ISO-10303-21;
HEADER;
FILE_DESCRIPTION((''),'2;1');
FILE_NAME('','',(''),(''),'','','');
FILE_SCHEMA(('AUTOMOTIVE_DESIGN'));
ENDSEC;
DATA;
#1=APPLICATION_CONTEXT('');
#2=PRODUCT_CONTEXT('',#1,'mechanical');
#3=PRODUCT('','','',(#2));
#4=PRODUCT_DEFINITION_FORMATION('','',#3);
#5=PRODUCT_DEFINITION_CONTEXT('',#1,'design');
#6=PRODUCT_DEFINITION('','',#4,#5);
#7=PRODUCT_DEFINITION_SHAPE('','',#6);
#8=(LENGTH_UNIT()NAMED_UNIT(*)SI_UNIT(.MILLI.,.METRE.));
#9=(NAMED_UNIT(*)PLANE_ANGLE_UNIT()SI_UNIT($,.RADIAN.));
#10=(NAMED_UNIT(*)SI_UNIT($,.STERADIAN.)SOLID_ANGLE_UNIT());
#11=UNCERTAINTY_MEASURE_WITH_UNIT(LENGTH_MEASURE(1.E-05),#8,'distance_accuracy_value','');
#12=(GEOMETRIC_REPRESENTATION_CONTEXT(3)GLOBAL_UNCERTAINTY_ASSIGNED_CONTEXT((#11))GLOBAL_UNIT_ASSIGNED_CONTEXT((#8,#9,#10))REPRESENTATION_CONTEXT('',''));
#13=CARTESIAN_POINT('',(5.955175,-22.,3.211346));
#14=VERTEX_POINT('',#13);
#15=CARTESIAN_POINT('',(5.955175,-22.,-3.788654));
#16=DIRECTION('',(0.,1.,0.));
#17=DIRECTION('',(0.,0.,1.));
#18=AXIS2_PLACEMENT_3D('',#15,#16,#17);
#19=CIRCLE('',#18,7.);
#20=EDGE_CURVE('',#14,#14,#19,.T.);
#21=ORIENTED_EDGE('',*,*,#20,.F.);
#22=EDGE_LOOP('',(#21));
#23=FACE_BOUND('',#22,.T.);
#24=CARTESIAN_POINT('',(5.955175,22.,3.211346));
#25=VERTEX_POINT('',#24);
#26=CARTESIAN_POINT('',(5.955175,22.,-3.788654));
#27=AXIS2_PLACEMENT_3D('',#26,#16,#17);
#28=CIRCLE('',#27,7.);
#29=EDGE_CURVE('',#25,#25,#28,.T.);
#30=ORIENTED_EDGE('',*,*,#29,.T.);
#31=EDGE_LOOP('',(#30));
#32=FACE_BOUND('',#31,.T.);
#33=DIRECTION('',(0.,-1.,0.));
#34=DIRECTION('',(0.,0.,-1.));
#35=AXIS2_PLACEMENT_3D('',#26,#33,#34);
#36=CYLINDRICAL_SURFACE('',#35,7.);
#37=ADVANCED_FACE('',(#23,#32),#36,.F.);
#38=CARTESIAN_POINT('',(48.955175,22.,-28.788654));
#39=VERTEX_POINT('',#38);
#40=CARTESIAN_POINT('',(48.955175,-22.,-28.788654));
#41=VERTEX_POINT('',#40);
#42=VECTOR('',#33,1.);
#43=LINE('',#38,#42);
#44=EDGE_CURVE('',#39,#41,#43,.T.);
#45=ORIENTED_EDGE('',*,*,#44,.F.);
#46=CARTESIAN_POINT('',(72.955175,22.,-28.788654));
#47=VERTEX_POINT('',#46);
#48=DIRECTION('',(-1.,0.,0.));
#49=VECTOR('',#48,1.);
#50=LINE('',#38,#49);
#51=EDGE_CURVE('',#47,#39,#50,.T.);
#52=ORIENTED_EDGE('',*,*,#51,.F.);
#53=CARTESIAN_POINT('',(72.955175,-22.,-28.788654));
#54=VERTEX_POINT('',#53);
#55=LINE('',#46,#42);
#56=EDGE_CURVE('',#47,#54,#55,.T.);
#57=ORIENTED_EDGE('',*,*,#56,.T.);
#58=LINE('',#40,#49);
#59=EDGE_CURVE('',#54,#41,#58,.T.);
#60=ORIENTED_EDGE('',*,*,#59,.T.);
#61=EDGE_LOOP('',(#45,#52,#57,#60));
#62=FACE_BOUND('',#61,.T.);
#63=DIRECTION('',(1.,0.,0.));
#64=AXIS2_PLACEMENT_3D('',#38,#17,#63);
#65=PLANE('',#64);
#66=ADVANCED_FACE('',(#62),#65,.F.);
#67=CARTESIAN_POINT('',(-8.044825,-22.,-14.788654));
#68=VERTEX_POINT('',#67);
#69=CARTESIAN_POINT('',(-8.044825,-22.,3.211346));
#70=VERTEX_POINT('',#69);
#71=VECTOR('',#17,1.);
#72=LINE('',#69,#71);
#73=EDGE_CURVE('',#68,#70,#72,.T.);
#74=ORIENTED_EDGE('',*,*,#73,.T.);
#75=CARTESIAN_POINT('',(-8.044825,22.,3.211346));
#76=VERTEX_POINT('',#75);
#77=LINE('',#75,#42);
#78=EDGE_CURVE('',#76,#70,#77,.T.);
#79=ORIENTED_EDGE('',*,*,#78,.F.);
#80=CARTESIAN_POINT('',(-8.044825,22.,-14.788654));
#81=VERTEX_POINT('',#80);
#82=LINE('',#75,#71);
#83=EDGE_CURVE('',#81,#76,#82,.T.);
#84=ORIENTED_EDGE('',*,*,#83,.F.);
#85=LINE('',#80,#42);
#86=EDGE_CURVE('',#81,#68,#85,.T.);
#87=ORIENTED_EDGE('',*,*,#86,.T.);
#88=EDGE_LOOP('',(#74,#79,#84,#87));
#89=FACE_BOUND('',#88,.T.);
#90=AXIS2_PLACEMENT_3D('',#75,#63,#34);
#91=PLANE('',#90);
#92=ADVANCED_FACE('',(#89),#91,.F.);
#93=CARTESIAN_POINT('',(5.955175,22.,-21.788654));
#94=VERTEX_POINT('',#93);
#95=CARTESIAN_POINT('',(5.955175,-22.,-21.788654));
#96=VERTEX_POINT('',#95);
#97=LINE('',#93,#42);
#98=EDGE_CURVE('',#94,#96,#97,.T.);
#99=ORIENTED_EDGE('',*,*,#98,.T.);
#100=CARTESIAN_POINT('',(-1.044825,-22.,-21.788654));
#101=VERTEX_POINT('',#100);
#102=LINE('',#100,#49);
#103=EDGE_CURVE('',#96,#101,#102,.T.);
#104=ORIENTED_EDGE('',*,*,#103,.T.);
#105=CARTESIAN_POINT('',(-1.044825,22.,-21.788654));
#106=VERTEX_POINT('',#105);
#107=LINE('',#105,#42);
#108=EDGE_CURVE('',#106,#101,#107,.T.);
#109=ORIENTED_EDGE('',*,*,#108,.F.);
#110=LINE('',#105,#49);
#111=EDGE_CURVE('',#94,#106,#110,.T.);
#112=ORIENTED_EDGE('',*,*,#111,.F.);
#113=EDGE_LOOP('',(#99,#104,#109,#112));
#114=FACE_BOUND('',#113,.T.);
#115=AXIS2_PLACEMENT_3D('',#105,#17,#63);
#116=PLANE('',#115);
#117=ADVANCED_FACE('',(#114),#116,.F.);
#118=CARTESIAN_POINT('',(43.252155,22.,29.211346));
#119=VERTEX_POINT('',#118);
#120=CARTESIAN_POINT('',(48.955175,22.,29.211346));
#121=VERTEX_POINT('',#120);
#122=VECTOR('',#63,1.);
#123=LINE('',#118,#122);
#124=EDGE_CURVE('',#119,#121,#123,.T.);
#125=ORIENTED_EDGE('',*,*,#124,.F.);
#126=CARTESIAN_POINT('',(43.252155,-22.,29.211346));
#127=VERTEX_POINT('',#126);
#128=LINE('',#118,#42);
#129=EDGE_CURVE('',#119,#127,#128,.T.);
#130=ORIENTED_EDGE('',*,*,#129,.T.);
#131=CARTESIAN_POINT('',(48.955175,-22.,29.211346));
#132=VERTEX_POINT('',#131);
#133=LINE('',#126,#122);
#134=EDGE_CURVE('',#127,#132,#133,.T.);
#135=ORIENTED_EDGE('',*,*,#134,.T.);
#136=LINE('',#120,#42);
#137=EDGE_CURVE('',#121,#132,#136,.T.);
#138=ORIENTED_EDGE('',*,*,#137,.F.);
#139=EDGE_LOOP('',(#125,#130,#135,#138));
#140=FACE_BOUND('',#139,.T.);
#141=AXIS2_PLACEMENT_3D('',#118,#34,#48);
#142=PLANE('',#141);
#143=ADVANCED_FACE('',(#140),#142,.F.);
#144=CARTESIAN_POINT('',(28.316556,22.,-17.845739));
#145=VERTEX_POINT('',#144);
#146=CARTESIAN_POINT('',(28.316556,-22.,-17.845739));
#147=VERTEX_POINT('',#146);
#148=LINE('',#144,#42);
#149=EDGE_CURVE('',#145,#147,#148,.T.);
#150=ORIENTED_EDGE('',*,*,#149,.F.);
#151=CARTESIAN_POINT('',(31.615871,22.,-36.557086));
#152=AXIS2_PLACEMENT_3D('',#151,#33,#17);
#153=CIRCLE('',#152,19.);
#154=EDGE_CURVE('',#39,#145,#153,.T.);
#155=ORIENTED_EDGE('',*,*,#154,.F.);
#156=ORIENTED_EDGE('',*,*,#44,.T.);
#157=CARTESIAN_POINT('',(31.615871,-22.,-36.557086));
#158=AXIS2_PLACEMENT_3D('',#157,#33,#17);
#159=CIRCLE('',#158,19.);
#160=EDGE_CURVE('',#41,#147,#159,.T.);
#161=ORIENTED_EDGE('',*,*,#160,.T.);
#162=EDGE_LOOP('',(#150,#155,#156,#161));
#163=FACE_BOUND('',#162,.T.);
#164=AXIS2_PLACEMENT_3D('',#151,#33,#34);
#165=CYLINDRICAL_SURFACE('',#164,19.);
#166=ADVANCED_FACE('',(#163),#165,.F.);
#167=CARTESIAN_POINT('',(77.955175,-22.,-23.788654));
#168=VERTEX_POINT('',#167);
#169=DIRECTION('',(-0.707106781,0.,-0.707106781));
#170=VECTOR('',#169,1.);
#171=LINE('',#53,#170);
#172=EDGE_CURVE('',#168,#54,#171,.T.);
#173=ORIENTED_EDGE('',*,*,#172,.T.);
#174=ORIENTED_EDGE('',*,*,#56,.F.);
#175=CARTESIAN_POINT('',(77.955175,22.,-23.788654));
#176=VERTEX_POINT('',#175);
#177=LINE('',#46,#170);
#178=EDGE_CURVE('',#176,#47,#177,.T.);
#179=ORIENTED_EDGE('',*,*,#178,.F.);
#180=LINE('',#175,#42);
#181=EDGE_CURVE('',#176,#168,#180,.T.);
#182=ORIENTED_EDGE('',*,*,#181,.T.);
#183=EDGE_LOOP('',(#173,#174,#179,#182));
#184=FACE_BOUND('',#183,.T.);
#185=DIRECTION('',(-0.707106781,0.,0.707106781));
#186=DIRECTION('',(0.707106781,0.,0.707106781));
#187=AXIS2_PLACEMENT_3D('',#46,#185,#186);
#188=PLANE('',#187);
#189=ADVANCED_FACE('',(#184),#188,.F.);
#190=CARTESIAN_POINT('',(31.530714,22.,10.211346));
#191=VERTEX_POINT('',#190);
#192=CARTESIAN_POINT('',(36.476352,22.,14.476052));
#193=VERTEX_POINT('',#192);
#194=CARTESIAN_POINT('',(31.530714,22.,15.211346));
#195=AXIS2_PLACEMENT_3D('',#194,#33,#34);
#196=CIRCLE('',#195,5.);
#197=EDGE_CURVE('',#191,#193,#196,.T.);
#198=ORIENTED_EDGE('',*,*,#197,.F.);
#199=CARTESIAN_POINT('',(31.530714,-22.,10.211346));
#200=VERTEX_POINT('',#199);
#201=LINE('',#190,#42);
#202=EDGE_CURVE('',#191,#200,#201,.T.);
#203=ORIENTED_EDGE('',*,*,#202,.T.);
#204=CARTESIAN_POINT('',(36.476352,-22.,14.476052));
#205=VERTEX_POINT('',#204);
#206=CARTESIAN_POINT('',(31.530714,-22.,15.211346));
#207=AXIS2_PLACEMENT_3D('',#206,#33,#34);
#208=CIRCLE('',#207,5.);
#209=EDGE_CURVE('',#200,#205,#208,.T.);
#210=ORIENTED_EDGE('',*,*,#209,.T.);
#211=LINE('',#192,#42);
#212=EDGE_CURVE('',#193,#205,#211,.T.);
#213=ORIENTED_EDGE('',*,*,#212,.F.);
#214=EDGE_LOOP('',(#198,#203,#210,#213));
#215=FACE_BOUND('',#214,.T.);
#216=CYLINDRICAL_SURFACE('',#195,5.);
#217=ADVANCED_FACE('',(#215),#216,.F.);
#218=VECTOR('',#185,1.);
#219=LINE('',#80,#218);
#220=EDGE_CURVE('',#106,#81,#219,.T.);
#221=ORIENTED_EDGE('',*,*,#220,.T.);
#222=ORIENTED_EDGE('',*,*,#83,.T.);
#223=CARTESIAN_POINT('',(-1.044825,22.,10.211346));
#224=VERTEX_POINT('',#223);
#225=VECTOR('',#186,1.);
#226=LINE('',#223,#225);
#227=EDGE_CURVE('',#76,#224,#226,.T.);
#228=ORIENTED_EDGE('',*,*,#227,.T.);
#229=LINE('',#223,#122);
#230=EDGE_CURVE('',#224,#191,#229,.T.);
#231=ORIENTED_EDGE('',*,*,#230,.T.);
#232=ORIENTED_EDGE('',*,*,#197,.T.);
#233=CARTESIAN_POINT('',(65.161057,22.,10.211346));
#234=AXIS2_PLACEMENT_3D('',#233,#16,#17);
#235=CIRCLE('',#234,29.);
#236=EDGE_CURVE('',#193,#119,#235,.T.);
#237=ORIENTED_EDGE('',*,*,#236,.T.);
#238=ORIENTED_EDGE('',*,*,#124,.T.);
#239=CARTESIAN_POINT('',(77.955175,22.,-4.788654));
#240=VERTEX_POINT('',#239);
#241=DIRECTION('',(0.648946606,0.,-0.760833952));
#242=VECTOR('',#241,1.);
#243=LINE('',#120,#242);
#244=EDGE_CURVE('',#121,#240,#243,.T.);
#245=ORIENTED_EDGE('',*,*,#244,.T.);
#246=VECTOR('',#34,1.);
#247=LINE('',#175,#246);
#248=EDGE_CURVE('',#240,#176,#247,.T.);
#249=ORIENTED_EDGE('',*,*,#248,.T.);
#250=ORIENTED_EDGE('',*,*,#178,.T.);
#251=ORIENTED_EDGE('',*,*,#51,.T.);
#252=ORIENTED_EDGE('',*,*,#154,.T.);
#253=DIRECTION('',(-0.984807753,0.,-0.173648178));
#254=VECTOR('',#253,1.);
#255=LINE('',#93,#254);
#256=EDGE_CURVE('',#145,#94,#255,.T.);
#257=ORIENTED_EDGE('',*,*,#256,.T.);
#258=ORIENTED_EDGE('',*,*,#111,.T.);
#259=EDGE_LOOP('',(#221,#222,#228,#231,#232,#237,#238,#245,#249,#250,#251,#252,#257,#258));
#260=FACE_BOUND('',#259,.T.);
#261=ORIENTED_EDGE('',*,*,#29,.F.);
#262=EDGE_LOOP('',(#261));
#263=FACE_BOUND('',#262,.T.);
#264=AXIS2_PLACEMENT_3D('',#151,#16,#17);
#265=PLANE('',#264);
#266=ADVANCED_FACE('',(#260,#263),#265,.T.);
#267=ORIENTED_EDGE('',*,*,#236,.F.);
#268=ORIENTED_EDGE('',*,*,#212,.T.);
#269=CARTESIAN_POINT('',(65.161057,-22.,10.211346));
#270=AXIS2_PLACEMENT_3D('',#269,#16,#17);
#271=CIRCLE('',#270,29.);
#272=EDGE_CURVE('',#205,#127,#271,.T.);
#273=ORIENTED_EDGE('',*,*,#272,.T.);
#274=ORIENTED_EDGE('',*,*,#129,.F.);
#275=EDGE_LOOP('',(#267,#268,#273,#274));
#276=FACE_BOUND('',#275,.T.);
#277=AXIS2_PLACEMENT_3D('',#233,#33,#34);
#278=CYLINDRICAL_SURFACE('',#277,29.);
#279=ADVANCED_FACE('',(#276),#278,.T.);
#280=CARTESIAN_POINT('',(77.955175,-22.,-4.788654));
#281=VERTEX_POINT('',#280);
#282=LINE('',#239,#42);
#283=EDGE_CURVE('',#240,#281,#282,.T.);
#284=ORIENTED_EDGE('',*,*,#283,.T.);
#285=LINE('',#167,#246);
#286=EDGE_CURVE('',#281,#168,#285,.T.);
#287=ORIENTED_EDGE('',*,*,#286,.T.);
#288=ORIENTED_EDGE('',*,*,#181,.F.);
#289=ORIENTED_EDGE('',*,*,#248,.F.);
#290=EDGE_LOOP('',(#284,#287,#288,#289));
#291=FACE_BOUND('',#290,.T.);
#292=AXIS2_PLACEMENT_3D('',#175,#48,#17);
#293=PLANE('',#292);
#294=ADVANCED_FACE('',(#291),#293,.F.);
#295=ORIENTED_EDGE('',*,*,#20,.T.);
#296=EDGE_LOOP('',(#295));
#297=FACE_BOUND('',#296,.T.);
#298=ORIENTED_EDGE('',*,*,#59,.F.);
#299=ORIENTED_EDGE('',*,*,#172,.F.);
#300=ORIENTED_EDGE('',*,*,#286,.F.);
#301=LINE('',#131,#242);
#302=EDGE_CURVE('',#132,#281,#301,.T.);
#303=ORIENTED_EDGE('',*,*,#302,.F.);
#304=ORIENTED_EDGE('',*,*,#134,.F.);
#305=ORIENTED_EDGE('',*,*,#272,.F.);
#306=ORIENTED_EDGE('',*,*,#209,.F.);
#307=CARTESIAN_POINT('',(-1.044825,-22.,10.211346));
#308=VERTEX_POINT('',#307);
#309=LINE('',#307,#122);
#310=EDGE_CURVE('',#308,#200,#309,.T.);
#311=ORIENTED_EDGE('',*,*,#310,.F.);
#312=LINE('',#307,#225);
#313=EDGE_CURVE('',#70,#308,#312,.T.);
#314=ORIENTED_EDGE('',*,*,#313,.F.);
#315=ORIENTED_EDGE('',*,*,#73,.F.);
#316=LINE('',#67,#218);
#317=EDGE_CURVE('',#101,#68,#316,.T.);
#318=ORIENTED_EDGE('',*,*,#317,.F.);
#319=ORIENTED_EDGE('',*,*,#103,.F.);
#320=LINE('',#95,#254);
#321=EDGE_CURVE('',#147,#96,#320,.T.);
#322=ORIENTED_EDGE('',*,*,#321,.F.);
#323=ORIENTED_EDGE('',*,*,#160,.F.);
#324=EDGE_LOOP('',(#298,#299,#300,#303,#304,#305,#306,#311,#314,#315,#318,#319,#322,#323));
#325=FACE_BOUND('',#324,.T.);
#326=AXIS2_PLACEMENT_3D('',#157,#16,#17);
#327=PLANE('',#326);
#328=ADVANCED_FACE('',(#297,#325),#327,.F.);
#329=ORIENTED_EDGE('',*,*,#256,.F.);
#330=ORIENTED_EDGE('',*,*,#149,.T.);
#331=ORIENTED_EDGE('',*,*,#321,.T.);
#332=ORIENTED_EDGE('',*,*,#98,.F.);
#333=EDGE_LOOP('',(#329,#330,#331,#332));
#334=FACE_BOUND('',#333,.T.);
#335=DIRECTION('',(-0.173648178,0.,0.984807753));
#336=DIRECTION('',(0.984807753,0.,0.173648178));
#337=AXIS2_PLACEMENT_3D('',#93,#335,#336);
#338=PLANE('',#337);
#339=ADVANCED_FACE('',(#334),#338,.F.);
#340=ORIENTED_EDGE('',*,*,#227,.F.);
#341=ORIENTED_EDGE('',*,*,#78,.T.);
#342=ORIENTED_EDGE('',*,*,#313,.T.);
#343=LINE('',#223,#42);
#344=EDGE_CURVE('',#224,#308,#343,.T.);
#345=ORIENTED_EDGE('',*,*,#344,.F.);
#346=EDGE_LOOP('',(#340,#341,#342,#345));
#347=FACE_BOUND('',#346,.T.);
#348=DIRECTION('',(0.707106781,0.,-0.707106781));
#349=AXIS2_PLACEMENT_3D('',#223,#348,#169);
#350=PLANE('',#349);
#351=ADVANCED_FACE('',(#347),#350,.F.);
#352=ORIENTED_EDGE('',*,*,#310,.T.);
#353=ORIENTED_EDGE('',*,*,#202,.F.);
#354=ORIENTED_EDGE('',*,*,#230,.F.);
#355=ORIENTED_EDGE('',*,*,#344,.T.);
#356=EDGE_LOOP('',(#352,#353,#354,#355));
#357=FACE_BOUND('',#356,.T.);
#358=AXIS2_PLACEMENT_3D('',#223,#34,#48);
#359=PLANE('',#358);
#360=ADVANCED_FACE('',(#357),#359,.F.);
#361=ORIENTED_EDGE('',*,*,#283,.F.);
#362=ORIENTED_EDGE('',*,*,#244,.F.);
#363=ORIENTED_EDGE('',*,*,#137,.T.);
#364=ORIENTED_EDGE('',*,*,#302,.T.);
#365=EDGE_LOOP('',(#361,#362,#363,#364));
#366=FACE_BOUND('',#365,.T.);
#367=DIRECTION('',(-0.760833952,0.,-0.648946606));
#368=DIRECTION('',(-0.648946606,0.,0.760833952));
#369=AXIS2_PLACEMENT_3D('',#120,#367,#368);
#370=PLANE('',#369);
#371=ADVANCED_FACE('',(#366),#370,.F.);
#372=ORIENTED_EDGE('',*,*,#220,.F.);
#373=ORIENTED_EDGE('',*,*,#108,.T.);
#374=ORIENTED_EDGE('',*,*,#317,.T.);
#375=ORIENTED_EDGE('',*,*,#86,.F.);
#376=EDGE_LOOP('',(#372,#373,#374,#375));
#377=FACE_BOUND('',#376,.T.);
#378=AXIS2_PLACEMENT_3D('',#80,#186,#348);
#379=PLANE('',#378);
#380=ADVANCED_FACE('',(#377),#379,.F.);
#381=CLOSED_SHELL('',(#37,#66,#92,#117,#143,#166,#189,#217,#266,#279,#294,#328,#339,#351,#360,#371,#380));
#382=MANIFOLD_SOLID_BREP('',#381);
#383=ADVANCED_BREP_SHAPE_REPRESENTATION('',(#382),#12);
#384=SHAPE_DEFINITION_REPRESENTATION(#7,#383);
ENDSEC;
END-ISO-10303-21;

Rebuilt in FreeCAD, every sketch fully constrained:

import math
import FreeCAD as App
import Part
import Sketcher
Q = App.Units.Quantity

doc = App.newDocument("Part")
body = doc.addObject("PartDesign::Body", "Body")

# Sketch on XZ plane
sketch1 = body.newObject("Sketcher::SketchObject", "Sketch")
sketch1.AttachmentSupport = (doc.getObject("XZ_Plane"), [""])
sketch1.MapMode = "FlatFace"
sketch1.addGeometry(Part.LineSegment(App.Vector(-8.044825, -14.788654, 0), App.Vector(-8.044825, 3.211346, 0)), False)
sketch1.addGeometry(Part.LineSegment(App.Vector(-8.044825, 3.211346, 0), App.Vector(-1.044825, 10.211346, 0)), False)
sketch1.addGeometry(Part.LineSegment(App.Vector(-1.044825, 10.211346, 0), App.Vector(31.530714, 10.211346, 0)), False)
sketch1.addGeometry(Part.ArcOfCircle(Part.Circle(App.Vector(31.530714, 15.211346, 0), App.Vector(0, 0, 1), 5), math.radians(-90), math.radians(-8.456519)), False)
sketch1.addGeometry(Part.ArcOfCircle(Part.Circle(App.Vector(65.161057, 10.211346, 0), App.Vector(0, 0, 1), 29), math.radians(139.067275), math.radians(171.543481)), False)
sketch1.addGeometry(Part.LineSegment(App.Vector(43.252155, 29.211346, 0), App.Vector(48.955175, 29.211346, 0)), False)
sketch1.addGeometry(Part.LineSegment(App.Vector(48.955175, 29.211346, 0), App.Vector(77.955175, -4.788654, 0)), False)
sketch1.addGeometry(Part.LineSegment(App.Vector(77.955175, -4.788654, 0), App.Vector(77.955175, -23.788654, 0)), False)
sketch1.addGeometry(Part.LineSegment(App.Vector(77.955175, -23.788654, 0), App.Vector(72.955175, -28.788654, 0)), False)
sketch1.addGeometry(Part.LineSegment(App.Vector(72.955175, -28.788654, 0), App.Vector(48.955175, -28.788654, 0)), False)
sketch1.addGeometry(Part.ArcOfCircle(Part.Circle(App.Vector(31.615871, -36.557086, 0), App.Vector(0, 0, 1), 19), math.radians(24.133548), math.radians(100)), False)
sketch1.addGeometry(Part.LineSegment(App.Vector(28.316556, -17.845739, 0), App.Vector(5.955175, -21.788654, 0)), False)
sketch1.addGeometry(Part.LineSegment(App.Vector(5.955175, -21.788654, 0), App.Vector(-1.044825, -21.788654, 0)), False)
sketch1.addGeometry(Part.LineSegment(App.Vector(-1.044825, -21.788654, 0), App.Vector(-8.044825, -14.788654, 0)), False)
sketch1.addGeometry(Part.Circle(App.Vector(5.955175, -3.788654, 0), App.Vector(0, 0, 1), 7), False)
sketch1.addConstraint(Sketcher.Constraint("Coincident", 0, 2, 1, 1))
sketch1.addConstraint(Sketcher.Constraint("Coincident", 1, 2, 2, 1))
sketch1.addConstraint(Sketcher.Constraint("Tangent", 2, 2, 3, 1))
sketch1.addConstraint(Sketcher.Constraint("Tangent", 3, 2, 4, 2))
sketch1.addConstraint(Sketcher.Constraint("Coincident", 4, 1, 5, 1))
sketch1.addConstraint(Sketcher.Constraint("Coincident", 5, 2, 6, 1))
sketch1.addConstraint(Sketcher.Constraint("Coincident", 6, 2, 7, 1))
sketch1.addConstraint(Sketcher.Constraint("Coincident", 7, 2, 8, 1))
sketch1.addConstraint(Sketcher.Constraint("Coincident", 8, 2, 9, 1))
sketch1.addConstraint(Sketcher.Constraint("Coincident", 9, 2, 10, 1))
sketch1.addConstraint(Sketcher.Constraint("Tangent", 10, 2, 11, 1))
sketch1.addConstraint(Sketcher.Constraint("Coincident", 11, 2, 12, 1))
sketch1.addConstraint(Sketcher.Constraint("Coincident", 12, 2, 13, 1))
sketch1.addConstraint(Sketcher.Constraint("Coincident", 13, 2, 0, 1))
sketch1.addConstraint(Sketcher.Constraint("Vertical", 0))
sketch1.addConstraint(Sketcher.Constraint("Horizontal", 2))
sketch1.addConstraint(Sketcher.Constraint("Horizontal", 5))
sketch1.addConstraint(Sketcher.Constraint("Vertical", 7))
sketch1.addConstraint(Sketcher.Constraint("Horizontal", 9))
sketch1.addConstraint(Sketcher.Constraint("Horizontal", 12))
sketch1.addConstraint(Sketcher.Constraint("Parallel", 1, 8))
sketch1.addConstraint(Sketcher.Constraint("Perpendicular", 8, 13))
sketch1.addConstraint(Sketcher.Constraint("Horizontal", 4, 3, 1, 2))
sketch1.addConstraint(Sketcher.Constraint("Vertical", 5, 2, 9, 2))
sketch1.addConstraint(Sketcher.Constraint("Vertical", 14, 3, 11, 2))
sketch1.addConstraint(Sketcher.Constraint("Vertical", 1, 2, 12, 2))
sketch1.addConstraint(Sketcher.Constraint("Equal", 1, 13))
sketch1.addConstraint(Sketcher.Constraint("Diameter", 14, Q("14 mm")))
sketch1.addConstraint(Sketcher.Constraint("Radius", 3, Q("5 mm")))
sketch1.addConstraint(Sketcher.Constraint("Radius", 4, Q("29 mm")))
sketch1.addConstraint(Sketcher.Constraint("Radius", 10, Q("19 mm")))
sketch1.addConstraint(Sketcher.Constraint("DistanceX", 9, 2, 9, 1, Q("24 mm")))
sketch1.addConstraint(Sketcher.Constraint("DistanceX", 12, 2, 12, 1, Q("7 mm")))
sketch1.addConstraint(Sketcher.Constraint("DistanceY", 0, 1, 0, 2, Q("18 mm")))
sketch1.addConstraint(Sketcher.Constraint("DistanceY", 7, 2, 7, 1, Q("19 mm")))
sketch1.addConstraint(Sketcher.Constraint("Angle", 11, Q("-170 deg")))
sketch1.addConstraint(Sketcher.Constraint("DistanceY", 14, 3, 3, 3, Q("19 mm")))
sketch1.addConstraint(Sketcher.Constraint("DistanceX", 0, 2, 14, 3, Q("14 mm")))
sketch1.addConstraint(Sketcher.Constraint("DistanceY", 3, 3, 4, 1, Q("14 mm")))
sketch1.addConstraint(Sketcher.Constraint("DistanceY", 6, 2, 4, 3, Q("15 mm")))
sketch1.addConstraint(Sketcher.Constraint("DistanceX", 5, 2, 6, 2, Q("29 mm")))
sketch1.addConstraint(Sketcher.Constraint("DistanceX", 2, 1, 2, 2, Q("32.575539 mm")))
sketch1.addConstraint(Sketcher.Constraint("DistanceX", 5, 1, 5, 2, Q("5.70302 mm")))
sketch1.addConstraint(Sketcher.Constraint("DistanceX", -1, 1, 10, 3, Q("31.615871 mm")))
sketch1.addConstraint(Sketcher.Constraint("DistanceY", 10, 2, -1, 1, Q("17.845739 mm")))
pad1 = body.newObject("PartDesign::Pad", "Pad")
pad1.Profile = sketch1
pad1.Length = 44
pad1.Midplane = True

doc.recompute()
